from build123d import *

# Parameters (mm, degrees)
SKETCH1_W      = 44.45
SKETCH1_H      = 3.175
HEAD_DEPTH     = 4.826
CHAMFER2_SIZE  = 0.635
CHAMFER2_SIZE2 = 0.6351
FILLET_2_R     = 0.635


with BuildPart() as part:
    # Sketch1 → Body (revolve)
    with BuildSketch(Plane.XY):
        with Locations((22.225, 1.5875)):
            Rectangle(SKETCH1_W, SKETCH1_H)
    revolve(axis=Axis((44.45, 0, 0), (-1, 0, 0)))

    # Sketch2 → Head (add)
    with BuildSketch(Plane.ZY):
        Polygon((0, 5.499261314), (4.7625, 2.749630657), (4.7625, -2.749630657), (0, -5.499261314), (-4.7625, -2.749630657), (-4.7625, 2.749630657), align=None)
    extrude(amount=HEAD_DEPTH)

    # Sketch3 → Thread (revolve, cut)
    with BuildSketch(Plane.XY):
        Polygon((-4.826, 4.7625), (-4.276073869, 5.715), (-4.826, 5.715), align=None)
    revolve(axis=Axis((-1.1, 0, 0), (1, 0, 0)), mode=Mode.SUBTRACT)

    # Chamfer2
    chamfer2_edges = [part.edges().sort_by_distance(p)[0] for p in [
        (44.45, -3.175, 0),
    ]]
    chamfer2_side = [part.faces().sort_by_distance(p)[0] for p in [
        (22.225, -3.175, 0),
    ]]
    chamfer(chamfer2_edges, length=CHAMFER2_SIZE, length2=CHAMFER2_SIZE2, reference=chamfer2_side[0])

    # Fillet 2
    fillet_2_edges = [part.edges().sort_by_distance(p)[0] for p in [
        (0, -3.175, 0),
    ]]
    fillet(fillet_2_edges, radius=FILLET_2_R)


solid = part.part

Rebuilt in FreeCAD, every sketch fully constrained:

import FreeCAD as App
import Part
import Sketcher
Q = App.Units.Quantity


def edges_at(feature, points):
    """Names of the edges that pass closest to the given points."""
    edges = feature.Shape.Edges
    near = lambda p: min(range(len(edges)), key=lambda i: edges[i].distToShape(Part.Vertex(*p))[0])
    return sorted({f"Edge{near(p) + 1}" for p in points})


def add_polygon(sketch, points):
    """Adds a closed chain of lines whose ends are joined by coincident constraints."""
    first, n = sketch.GeometryCount, len(points)
    for a, b in zip(points, points[1:] + points[:1]):
        sketch.addGeometry(Part.LineSegment(App.Vector(*a, 0), App.Vector(*b, 0)), False)
    for i in range(n):
        sketch.addConstraint(Sketcher.Constraint("Coincident", first + i, 2, first + (i + 1) % n, 1))

doc = App.newDocument("Part")
body = doc.addObject("PartDesign::Body", "Body")

# Sketch on XY plane
sketch1 = body.newObject("Sketcher::SketchObject", "Sketch")
sketch1.AttachmentSupport = (doc.getObject("XY_Plane"), [""])
sketch1.MapMode = "FlatFace"
add_polygon(sketch1, [(0, 3.2), (0, 0), (44.5, 0), (44.5, 3.2)])  # lines 0-3
sketch1.addConstraint([
    Sketcher.Constraint("Vertical", 0),
    Sketcher.Constraint("Horizontal", 1),
    Sketcher.Constraint("Vertical", 2),
    Sketcher.Constraint("Horizontal", 3),
    Sketcher.Constraint("Coincident", 0, 2, -1, 1),
    Sketcher.Constraint("DistanceX", 1, 1, 1, 2, Q("1.75 in")),
    Sketcher.Constraint("DistanceY", 0, 2, 0, 1, Q("0.125 in")),
])
revolution = body.newObject("PartDesign::Revolution", "Revolution")
revolution.Profile = sketch1
revolution.ReferenceAxis = (sketch1, ["H_Axis"])
revolution.Angle = 360

# Sketch on YZ plane
sketch2 = body.newObject("Sketcher::SketchObject", "Sketch001")
sketch2.AttachmentSupport = (doc.getObject("YZ_Plane"), [""])
sketch2.MapMode = "FlatFace"
add_polygon(sketch2, [(3, 5), (5, 0), (3, -5), (-3, -5), (-5, 0), (-3, 5)])  # lines 0-5
sketch2.addConstraint([
    Sketcher.Constraint("Horizontal", 2),
    Sketcher.Constraint("Horizontal", 5),
    Sketcher.Constraint("Symmetric", 0, 2, 3, 2, -1, 1),
    Sketcher.Constraint("Symmetric", 1, 2, 4, 2, -1, 1),
    Sketcher.Constraint("PointOnObject", 0, 2, -1),
    Sketcher.Constraint("Parallel", 0, 3),
    Sketcher.Constraint("Vertical", 2, 2, 4, 2),
    Sketcher.Constraint("Angle", 0, Q("-60 deg")),
    Sketcher.Constraint("DistanceY", 1, 2, -1, 1, Q("0.1875 in")),
    Sketcher.Constraint("DistanceX", 2, 2, 2, 1, Q("5.499261 mm")),
])
pad1 = body.newObject("PartDesign::Pad", "Pad")
pad1.Profile = sketch2
pad1.Length = Q("0.19 in")
pad1.Reversed = True

# Sketch on XY plane
sketch3 = body.newObject("Sketcher::SketchObject", "Sketch002")
sketch3.AttachmentSupport = (doc.getObject("XY_Plane"), [""])
sketch3.MapMode = "FlatFace"
add_polygon(sketch3, [(-4.8, 4.8), (-4.3, 5.7), (-4.8, 5.7)])  # lines 0-2
sketch3.addConstraint([
    Sketcher.Constraint("Horizontal", 1),
    Sketcher.Constraint("Vertical", 2),
    Sketcher.Constraint("Angle", 0, Q("60 deg")),
    Sketcher.Constraint("DistanceX", 1, 2, -1, 1, Q("0.19 in")),
    Sketcher.Constraint("DistanceY", 2, 2, 2, 1, Q("0.0375 in")),
    Sketcher.Constraint("DistanceY", -1, 1, 0, 2, Q("0.225 in")),
])
groove = body.newObject("PartDesign::Groove", "Groove")
groove.Profile = sketch3
groove.ReferenceAxis = (sketch3, ["H_Axis"])
groove.Angle = 360
doc.recompute()

chamfer = body.newObject("PartDesign::Chamfer", "Chamfer")
chamfer.Base = (groove, edges_at(groove, [(44.45, -3.175, 0)]))
chamfer.ChamferType = "Two distances"
chamfer.Size = Q("0.025 in")
chamfer.Size2 = 0.6351
doc.recompute()

fillet = body.newObject("PartDesign::Fillet", "Fillet")
fillet.Base = (chamfer, edges_at(chamfer, [(0, -3.175, 0)]))
fillet.Radius = Q("0.025 in")

doc.recompute()
